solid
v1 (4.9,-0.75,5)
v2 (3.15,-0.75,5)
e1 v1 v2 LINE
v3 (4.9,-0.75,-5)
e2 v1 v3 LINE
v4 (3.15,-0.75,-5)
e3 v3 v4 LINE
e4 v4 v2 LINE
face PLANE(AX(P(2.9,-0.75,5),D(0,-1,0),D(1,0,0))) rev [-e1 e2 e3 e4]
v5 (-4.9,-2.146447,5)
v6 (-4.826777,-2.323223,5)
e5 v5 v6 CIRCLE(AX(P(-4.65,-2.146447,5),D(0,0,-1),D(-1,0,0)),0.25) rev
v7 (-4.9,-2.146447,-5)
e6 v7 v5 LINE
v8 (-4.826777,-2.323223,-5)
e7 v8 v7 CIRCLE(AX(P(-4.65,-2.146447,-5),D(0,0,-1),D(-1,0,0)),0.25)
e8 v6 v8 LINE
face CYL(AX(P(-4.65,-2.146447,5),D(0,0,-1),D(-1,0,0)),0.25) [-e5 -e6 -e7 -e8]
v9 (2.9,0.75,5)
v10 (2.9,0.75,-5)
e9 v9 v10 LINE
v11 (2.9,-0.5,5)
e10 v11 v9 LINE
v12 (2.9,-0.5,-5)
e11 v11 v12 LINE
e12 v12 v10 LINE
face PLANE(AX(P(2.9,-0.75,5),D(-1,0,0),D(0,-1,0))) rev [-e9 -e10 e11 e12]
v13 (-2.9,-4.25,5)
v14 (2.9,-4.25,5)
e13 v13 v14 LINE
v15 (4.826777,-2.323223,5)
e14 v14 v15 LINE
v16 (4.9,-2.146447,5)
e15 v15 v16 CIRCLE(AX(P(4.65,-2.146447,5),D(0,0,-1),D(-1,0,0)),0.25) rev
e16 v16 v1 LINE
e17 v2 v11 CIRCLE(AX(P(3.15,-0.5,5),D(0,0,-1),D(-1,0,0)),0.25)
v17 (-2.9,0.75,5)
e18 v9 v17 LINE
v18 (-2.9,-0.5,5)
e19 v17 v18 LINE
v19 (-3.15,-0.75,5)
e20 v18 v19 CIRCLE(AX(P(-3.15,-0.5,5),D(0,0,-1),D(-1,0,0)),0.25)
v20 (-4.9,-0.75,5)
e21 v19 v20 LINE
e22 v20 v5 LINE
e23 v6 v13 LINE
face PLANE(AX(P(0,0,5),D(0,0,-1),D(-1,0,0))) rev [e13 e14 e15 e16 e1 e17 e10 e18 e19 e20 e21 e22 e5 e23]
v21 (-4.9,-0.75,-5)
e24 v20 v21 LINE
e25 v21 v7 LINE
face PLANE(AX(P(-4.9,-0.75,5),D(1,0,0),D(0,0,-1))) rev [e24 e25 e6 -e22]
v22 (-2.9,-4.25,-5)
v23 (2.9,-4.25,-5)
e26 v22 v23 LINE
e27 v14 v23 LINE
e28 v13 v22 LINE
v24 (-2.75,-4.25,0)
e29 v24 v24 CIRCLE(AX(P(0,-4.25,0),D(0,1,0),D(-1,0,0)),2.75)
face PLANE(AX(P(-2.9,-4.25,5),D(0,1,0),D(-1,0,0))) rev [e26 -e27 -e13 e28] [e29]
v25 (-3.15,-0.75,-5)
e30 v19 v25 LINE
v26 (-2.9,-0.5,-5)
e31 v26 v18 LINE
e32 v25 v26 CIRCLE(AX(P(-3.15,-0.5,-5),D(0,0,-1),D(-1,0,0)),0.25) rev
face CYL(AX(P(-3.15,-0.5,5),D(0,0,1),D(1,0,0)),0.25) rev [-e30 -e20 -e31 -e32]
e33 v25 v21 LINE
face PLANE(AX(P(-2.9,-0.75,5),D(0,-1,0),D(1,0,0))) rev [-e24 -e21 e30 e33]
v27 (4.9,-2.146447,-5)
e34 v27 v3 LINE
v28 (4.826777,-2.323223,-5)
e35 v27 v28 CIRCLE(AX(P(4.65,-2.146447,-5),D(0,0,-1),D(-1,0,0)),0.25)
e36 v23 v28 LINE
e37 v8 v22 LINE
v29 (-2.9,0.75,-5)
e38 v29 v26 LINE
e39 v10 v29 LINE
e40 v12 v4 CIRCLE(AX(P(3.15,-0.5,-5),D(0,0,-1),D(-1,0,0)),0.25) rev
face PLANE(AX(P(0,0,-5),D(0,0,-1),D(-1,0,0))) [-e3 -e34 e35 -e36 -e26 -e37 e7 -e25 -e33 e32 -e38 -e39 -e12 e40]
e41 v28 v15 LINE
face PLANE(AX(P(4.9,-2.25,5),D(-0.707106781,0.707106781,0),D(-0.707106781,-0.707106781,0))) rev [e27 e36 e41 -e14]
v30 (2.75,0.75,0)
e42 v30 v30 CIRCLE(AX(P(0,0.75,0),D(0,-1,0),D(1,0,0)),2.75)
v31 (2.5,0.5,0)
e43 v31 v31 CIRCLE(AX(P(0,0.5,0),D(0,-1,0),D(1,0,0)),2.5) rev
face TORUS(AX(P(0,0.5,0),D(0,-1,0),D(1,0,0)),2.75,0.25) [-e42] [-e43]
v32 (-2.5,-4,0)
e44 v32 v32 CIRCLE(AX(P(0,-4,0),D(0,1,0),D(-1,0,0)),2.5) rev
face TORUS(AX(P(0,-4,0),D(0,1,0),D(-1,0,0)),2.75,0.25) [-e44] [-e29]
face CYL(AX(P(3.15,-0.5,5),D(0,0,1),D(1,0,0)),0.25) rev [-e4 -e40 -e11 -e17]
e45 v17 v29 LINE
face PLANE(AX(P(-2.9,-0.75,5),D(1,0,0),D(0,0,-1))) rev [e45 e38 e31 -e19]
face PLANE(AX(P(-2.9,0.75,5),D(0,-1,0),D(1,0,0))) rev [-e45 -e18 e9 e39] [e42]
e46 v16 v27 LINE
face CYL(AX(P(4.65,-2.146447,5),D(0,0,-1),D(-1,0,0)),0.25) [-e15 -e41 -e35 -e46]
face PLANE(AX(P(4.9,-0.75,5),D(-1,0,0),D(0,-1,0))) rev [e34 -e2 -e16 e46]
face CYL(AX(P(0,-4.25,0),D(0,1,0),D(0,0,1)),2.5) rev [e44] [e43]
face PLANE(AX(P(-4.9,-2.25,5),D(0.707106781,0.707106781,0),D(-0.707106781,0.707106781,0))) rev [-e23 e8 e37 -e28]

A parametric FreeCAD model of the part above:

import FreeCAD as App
import Part
import Sketcher
Q = App.Units.Quantity


def edges_at(feature, points):
    """Names of the edges that pass closest to the given points."""
    edges = feature.Shape.Edges
    near = lambda p: min(range(len(edges)), key=lambda i: edges[i].distToShape(Part.Vertex(*p))[0])
    return sorted({f"Edge{near(p) + 1}" for p in points})


def add_polygon(sketch, points):
    """Adds a closed chain of lines whose ends are joined by coincident constraints."""
    first, n = sketch.GeometryCount, len(points)
    for a, b in zip(points, points[1:] + points[:1]):
        sketch.addGeometry(Part.LineSegment(App.Vector(*a, 0), App.Vector(*b, 0)), False)
    for i in range(n):
        sketch.addConstraint(Sketcher.Constraint("Coincident", first + i, 2, first + (i + 1) % n, 1))

doc = App.newDocument("Part")
params = doc.addObject("Spreadsheet::Sheet", "Params")
for row, (alias, value) in enumerate([
    ("sketch1_width", "2 mm"),
    ("sketch1_width2", "5.8 mm"),
    ("sketch1_height", "1.5 mm"),
    ("pad1_length", "10 mm"),
    ("sketch2_diameter", "5 mm"),
    ("fillet_radius", "0.25 mm"),
    ("fillet2_radius", "0.25 mm"),
], start=1):
    params.set(f"A{row}", alias)
    params.set(f"B{row}", "=" + value)
    params.setAlias(f"B{row}", alias)

body = doc.addObject("PartDesign::Body", "Body")

# Sketch on XY plane
sketch1 = body.newObject("Sketcher::SketchObject", "Sketch")
sketch1.AttachmentSupport = (doc.getObject("XY_Plane"), [""])
sketch1.MapMode = "FlatFace"
add_polygon(sketch1, [(-2.9, 0.8), (-2.9, -0.8), (-4.9, -0.8), (-4.9, -2.2), (-2.9, -4.2), (2.9, -4.2), (4.9, -2.2), (4.9, -0.8), (2.9, -0.8), (2.9, 0.8)])  # lines 0-9
sketch1.addConstraint([
    Sketcher.Constraint("Vertical", 0),
    Sketcher.Constraint("Horizontal", 1),
    Sketcher.Constraint("Vertical", 2),
    Sketcher.Constraint("Horizontal", 4),
    Sketcher.Constraint("Vertical", 6),
    Sketcher.Constraint("Horizontal", 7),
    Sketcher.Constraint("Vertical", 8),
    Sketcher.Constraint("Horizontal", 9),
    Sketcher.Constraint("Symmetric", 0, 2, 8, 2, -1, 1),
    Sketcher.Constraint("Symmetric", 2, 2, 5, 2, -2),
    Sketcher.Constraint("Perpendicular", 3, 5),
    Sketcher.Constraint("Horizontal", 1, 2, 6, 2),
    Sketcher.Constraint("Vertical", 0, 2, 3, 2),
    Sketcher.Constraint("Vertical", 4, 2, 7, 2),
    Sketcher.Constraint("Equal", 0, 2),
    Sketcher.Constraint("DistanceX", 1, 2, 1, 1, Q("2 mm")),
    Sketcher.Constraint("DistanceX", 4, 1, 4, 2, Q("5.8 mm")),
    Sketcher.Constraint("DistanceY", 0, 2, 0, 1, Q("1.5 mm")),
])
sketch1.setExpression("Constraints[25]", "Params.sketch1_width")
sketch1.setExpression("Constraints[26]", "Params.sketch1_width2")
sketch1.setExpression("Constraints[27]", "Params.sketch1_height")
pad1 = body.newObject("PartDesign::Pad", "Pad")
pad1.Profile = sketch1
pad1.setExpression("Length", "Params.pad1_length")
pad1.Midplane = True

# Sketch on XZ plane
sketch2 = body.newObject("Sketcher::SketchObject", "Sketch001")
sketch2.AttachmentSupport = (doc.getObject("XZ_Plane"), [""])
sketch2.MapMode = "FlatFace"
sketch2.addGeometry(Part.Circle(App.Vector(0, 0, 0), App.Vector(0, 0, 1), 2.5), False)
sketch2.addConstraint([
    Sketcher.Constraint("Coincident", 0, 3, -1, 1),
    Sketcher.Constraint("Diameter", 0, Q("5 mm")),
])
sketch2.setExpression("Constraints[1]", "Params.sketch2_diameter")
pocket1 = body.newObject("PartDesign::Pocket", "Pocket")
pocket1.Profile = sketch2
pocket1.Type = "ThroughAll"
pocket1.Midplane = True
doc.recompute()

fillet = body.newObject("PartDesign::Fillet", "Fillet")
fillet.Base = (pocket1, edges_at(pocket1, [
    (2.9, -0.75, 0),
    (4.9, -2.25, 0),
    (-4.9, -2.25, 0),
    (-2.9, -0.75, 0),
]))
fillet.setExpression("Radius", "Params.fillet_radius")
doc.recompute()

fillet2 = body.newObject("PartDesign::Fillet", "Fillet001")
fillet2.Base = (fillet, edges_at(fillet, [(0, -4.25, -2.5), (0, 0.75, -2.5)]))
fillet2.setExpression("Radius", "Params.fillet2_radius")

doc.recompute()
